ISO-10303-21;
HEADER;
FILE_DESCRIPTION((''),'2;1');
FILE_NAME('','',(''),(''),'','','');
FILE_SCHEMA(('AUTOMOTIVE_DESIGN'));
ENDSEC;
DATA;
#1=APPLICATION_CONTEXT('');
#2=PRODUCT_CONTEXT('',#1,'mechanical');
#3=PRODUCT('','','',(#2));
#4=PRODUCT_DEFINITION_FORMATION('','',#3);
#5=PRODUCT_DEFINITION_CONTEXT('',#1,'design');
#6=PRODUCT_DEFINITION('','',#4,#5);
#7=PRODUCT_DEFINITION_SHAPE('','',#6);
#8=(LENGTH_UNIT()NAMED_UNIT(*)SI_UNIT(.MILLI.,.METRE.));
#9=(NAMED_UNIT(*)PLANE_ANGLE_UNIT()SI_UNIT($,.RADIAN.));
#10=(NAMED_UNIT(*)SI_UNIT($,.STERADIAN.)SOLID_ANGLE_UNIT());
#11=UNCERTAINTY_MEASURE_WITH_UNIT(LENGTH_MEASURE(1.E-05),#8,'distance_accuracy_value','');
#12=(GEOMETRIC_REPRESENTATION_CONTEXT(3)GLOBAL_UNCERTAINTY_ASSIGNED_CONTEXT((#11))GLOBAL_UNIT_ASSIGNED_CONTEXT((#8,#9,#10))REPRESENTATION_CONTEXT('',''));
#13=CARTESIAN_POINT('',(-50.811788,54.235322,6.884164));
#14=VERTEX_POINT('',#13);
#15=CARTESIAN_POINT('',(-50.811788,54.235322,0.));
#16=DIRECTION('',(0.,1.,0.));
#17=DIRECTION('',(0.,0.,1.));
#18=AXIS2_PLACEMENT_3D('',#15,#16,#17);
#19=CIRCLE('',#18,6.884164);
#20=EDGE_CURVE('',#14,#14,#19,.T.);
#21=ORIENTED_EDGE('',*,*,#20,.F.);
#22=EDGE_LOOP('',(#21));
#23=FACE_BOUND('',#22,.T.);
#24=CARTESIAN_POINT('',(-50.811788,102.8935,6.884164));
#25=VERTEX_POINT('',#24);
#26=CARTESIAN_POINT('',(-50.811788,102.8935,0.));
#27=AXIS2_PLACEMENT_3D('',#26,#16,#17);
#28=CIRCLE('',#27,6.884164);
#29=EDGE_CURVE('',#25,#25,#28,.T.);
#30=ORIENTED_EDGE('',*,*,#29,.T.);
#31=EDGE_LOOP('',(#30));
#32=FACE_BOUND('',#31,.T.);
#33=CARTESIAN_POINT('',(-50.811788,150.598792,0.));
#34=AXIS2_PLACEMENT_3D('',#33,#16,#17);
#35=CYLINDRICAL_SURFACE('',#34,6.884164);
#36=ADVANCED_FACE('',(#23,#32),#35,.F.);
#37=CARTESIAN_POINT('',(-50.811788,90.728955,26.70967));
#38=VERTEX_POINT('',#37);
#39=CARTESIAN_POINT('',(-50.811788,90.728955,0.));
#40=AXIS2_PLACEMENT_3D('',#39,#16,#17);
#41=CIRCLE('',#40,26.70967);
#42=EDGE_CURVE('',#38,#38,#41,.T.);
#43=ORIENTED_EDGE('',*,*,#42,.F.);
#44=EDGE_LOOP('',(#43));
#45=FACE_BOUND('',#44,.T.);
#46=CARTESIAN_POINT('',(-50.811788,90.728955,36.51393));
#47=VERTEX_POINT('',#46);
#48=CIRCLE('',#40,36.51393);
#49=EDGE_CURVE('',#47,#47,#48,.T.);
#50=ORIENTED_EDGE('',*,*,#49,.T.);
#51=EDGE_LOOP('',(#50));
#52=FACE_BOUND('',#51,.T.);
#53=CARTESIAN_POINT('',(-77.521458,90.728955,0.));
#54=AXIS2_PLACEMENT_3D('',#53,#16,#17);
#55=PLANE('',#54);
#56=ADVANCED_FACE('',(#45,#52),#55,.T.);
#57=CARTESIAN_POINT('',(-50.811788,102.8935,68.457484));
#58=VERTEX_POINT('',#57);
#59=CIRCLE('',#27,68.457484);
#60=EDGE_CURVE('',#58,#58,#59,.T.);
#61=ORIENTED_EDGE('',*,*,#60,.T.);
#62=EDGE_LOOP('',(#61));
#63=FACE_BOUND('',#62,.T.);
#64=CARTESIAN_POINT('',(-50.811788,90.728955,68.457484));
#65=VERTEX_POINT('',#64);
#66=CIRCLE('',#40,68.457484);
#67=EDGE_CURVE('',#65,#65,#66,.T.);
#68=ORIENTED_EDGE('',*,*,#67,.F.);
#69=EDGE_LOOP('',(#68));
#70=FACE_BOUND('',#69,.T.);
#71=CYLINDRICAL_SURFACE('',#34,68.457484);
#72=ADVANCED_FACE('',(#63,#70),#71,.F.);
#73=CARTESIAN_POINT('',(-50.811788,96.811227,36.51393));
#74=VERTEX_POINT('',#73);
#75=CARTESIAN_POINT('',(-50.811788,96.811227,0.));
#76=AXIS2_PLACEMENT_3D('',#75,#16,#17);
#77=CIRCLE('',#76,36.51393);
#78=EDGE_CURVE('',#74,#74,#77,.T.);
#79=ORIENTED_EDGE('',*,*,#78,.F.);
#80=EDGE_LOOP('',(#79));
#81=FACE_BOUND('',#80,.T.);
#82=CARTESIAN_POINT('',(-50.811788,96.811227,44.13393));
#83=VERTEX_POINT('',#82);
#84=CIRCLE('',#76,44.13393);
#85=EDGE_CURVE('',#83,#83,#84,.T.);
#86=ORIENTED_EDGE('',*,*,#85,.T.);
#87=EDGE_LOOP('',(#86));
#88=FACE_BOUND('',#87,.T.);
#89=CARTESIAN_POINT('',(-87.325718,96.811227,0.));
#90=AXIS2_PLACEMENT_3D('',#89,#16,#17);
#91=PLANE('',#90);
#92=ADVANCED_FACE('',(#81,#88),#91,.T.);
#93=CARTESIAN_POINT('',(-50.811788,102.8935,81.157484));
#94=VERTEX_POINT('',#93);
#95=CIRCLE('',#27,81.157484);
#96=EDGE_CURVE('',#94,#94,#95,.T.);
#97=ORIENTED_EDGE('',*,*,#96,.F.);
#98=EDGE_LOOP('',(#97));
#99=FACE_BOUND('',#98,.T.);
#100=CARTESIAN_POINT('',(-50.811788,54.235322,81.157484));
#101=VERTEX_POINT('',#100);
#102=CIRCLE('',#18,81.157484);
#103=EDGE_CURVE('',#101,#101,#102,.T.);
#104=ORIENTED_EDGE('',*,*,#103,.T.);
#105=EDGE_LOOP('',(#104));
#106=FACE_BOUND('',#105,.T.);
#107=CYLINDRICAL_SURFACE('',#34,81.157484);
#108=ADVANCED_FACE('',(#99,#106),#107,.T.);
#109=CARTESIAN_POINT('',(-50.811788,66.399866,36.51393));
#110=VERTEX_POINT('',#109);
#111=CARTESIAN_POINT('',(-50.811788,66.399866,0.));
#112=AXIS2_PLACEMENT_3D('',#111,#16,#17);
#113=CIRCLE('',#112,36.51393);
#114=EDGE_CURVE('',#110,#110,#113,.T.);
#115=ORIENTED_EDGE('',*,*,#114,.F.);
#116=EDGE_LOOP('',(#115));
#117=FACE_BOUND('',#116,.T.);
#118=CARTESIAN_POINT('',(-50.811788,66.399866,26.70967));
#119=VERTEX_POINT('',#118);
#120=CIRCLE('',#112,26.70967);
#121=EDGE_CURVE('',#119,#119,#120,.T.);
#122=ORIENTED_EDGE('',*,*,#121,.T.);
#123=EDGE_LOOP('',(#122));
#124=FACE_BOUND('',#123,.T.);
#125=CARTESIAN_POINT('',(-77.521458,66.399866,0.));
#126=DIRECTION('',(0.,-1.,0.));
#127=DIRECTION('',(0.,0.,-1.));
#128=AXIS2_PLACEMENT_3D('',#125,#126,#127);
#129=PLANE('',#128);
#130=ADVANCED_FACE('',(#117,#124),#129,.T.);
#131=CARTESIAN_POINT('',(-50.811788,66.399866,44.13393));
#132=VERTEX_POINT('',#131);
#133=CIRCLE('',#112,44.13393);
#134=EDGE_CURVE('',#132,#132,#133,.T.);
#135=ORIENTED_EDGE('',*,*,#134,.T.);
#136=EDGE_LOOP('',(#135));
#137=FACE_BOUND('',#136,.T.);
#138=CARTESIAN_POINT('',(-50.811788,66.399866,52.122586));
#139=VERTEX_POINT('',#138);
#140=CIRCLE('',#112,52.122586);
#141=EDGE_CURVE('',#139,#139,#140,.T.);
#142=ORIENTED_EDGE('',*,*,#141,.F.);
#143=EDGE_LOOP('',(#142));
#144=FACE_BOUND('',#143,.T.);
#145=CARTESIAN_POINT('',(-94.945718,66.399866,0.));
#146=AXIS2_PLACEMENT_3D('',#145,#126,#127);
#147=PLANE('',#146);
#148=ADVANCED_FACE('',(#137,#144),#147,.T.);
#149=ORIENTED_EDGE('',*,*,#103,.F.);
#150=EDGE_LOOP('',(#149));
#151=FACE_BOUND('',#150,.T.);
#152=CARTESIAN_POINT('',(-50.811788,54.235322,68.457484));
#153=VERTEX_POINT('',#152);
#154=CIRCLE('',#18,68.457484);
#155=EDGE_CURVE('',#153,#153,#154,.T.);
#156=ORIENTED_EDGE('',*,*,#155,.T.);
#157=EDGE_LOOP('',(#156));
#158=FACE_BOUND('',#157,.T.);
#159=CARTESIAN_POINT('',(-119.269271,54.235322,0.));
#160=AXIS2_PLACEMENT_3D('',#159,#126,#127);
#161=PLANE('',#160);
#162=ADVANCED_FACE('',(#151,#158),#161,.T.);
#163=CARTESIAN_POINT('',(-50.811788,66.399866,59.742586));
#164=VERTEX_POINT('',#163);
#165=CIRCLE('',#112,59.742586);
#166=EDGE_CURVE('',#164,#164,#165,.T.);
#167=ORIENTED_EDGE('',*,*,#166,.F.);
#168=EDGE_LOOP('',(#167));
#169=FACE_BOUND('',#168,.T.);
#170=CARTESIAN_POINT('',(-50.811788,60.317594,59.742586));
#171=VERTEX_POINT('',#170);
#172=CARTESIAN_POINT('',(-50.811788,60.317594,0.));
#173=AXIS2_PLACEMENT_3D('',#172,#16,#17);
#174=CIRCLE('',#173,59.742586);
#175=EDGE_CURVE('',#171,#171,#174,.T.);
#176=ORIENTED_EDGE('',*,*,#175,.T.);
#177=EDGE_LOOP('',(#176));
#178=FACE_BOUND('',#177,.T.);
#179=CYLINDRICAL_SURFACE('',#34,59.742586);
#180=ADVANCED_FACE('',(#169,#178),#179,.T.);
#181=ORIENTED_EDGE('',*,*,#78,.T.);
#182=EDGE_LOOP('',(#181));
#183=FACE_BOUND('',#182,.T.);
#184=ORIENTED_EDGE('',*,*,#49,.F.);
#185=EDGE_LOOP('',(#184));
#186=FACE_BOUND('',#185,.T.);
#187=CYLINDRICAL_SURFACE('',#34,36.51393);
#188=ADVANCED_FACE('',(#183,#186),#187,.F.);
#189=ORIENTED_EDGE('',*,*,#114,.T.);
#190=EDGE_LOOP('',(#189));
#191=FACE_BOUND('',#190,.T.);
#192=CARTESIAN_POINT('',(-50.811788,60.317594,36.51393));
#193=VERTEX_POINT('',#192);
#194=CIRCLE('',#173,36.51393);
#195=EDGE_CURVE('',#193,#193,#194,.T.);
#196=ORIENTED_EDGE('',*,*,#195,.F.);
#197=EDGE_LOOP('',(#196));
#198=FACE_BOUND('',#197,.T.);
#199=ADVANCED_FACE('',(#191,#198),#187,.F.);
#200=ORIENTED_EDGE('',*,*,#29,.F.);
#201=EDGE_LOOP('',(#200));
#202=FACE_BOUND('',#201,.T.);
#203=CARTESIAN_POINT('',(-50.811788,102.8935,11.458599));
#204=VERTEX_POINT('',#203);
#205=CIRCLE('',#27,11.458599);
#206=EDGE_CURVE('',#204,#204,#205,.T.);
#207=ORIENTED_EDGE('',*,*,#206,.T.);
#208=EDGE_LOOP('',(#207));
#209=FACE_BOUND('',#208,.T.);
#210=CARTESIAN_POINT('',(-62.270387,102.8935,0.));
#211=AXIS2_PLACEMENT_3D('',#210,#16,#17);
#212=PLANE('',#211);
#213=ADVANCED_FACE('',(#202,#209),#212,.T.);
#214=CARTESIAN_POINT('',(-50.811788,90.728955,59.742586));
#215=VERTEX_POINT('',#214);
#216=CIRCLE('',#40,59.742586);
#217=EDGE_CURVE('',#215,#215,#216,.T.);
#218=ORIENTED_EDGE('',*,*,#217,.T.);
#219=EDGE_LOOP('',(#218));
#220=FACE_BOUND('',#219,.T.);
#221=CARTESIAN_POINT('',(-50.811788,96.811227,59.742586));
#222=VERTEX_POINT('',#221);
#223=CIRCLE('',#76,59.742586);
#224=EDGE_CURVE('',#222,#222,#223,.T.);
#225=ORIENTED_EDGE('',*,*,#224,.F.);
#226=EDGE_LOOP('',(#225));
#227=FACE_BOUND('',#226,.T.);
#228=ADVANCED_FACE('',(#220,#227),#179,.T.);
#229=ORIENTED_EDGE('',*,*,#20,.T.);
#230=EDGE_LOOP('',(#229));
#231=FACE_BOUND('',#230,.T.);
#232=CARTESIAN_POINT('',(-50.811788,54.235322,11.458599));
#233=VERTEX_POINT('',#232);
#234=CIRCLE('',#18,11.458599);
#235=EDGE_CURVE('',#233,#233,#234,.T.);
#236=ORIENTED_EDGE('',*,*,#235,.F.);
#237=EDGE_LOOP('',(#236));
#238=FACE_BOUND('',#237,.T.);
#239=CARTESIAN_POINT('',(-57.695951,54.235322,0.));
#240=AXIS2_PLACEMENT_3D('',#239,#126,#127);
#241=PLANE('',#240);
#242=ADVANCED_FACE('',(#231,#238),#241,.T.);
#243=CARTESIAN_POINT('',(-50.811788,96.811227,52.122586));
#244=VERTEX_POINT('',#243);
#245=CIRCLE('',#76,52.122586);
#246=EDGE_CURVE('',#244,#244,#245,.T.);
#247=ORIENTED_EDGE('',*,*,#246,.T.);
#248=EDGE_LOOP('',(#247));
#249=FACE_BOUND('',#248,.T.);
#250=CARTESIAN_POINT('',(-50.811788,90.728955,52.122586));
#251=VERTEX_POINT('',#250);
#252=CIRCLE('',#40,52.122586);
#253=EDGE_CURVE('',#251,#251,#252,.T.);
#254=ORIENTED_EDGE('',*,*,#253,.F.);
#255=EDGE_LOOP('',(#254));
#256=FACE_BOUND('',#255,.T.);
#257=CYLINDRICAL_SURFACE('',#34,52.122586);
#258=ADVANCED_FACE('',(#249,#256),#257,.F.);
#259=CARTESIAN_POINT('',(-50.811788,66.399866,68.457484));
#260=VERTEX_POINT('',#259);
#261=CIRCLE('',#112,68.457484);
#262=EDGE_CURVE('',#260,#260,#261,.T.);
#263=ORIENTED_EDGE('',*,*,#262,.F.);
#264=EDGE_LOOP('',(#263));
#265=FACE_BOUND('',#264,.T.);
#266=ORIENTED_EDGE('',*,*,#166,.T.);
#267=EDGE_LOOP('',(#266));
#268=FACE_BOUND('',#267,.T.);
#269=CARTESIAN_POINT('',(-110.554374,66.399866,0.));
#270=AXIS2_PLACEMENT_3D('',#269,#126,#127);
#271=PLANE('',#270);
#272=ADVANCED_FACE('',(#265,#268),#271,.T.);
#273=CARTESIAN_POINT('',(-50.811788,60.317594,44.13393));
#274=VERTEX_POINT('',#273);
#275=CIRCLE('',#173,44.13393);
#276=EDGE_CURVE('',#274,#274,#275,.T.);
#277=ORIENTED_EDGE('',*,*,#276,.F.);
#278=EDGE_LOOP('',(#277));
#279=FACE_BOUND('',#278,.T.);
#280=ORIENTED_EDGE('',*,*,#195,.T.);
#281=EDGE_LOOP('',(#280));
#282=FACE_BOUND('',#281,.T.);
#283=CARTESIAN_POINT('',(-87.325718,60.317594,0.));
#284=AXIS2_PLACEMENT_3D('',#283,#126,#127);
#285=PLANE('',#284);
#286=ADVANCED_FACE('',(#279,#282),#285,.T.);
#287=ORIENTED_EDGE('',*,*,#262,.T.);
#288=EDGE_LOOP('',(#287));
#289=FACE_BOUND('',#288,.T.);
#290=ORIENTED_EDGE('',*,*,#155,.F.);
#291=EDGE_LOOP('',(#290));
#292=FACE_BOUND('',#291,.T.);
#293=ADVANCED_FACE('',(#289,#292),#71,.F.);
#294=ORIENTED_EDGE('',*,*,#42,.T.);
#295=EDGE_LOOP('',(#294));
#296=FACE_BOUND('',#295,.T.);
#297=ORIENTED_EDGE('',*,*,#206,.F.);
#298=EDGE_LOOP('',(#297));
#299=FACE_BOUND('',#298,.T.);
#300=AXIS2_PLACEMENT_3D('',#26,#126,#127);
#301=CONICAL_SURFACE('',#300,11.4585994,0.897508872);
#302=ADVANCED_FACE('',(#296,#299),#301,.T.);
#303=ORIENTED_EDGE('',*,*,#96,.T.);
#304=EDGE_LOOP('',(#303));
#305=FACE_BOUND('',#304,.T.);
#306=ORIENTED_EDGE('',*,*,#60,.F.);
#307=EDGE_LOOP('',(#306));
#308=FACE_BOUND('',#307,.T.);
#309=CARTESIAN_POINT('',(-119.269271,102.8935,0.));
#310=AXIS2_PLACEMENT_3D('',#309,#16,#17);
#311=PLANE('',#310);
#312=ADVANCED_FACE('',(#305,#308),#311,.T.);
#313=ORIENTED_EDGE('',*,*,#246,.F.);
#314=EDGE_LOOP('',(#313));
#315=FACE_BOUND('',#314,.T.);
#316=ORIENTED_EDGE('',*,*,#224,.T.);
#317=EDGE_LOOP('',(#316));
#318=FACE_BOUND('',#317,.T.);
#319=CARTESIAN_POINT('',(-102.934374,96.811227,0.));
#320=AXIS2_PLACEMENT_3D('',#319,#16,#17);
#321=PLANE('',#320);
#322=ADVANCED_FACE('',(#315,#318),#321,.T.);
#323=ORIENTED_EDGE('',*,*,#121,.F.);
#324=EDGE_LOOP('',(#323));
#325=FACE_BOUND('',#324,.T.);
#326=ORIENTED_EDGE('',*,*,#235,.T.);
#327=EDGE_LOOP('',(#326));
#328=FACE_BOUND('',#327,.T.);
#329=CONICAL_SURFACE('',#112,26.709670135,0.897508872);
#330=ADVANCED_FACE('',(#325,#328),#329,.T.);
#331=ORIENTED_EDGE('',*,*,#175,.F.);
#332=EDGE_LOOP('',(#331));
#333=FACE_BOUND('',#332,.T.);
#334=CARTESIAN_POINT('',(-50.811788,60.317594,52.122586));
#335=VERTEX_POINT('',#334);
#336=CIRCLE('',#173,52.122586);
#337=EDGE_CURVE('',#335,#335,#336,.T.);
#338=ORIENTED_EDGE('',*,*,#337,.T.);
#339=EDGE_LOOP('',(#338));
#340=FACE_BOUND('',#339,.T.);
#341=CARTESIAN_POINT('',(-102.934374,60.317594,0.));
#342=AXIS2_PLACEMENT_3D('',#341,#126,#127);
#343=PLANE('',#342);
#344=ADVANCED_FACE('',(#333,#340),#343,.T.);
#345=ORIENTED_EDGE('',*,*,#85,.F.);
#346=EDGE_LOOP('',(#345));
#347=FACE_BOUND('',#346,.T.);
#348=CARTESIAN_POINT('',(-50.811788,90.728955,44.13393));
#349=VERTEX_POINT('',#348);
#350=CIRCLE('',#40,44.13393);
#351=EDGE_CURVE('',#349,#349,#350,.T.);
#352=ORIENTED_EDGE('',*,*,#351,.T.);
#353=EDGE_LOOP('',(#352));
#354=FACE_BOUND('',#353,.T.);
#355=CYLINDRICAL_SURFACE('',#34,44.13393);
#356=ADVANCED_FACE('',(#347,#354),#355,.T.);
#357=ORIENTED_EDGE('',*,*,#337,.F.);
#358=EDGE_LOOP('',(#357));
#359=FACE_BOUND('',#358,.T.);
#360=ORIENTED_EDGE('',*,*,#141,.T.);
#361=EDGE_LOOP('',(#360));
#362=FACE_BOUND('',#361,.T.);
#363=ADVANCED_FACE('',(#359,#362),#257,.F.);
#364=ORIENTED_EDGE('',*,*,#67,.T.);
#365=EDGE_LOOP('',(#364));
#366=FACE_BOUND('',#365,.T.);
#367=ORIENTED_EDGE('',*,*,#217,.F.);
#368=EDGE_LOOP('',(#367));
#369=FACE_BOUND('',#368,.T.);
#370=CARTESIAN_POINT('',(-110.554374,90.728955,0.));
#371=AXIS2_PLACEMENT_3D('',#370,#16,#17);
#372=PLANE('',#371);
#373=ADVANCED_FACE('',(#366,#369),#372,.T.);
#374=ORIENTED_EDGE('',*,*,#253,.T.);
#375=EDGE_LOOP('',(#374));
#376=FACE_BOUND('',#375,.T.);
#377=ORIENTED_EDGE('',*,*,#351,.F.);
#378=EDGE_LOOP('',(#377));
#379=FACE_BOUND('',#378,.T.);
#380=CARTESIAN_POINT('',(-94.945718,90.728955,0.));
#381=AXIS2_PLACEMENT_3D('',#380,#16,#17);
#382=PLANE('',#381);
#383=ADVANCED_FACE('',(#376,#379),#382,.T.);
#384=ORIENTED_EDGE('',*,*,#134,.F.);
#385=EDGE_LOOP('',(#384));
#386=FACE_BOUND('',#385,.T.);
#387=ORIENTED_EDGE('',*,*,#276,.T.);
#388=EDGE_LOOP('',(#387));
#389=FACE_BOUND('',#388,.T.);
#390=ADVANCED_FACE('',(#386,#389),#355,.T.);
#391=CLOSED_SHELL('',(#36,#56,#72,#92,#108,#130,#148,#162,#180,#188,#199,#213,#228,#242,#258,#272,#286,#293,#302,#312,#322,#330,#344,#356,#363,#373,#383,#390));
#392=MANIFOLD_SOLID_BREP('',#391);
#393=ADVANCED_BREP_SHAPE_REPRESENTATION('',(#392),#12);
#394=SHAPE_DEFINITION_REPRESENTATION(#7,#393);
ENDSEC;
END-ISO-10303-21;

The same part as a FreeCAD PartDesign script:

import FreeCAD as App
import Part
import Sketcher

V = App.Vector
Q = App.Units.Quantity


def add_polygon(sketch, points):
    """Adds a closed chain of lines whose ends are joined by coincident constraints."""
    first, n = sketch.GeometryCount, len(points)
    for a, b in zip(points, points[1:] + points[:1]):
        sketch.addGeometry(Part.LineSegment(App.Vector(*a, 0), App.Vector(*b, 0)), False)
    for i in range(n):
        sketch.addConstraint(Sketcher.Constraint("Coincident", first + i, 2, first + (i + 1) % n, 1))

doc = App.newDocument("Part")
body = doc.addObject("PartDesign::Body", "Body")

# Sketch on XY plane
sketch1 = body.newObject("Sketcher::SketchObject", "Sketch")
sketch1.AttachmentSupport = (doc.getObject("XY_Plane"), [""])
sketch1.MapMode = "FlatFace"
add_polygon(sketch1, [(-62.3, 102.9), (-77.5, 90.7), (-87.3, 90.7), (-87.3, 96.8), (-94.9, 96.8), (-94.9, 90.7), (-102.9, 90.7), (-102.9, 96.8), (-110.6, 96.8), (-110.6, 90.7), (-119.3, 90.7), (-119.3, 102.9), (-132, 102.9), (-132, 54.2), (-119.3, 54.2), (-119.3, 66.4), (-110.6, 66.4), (-110.6, 60.3), (-102.9, 60.3), (-102.9, 66.4), (-94.9, 66.4), (-94.9, 60.3), (-87.3, 60.3), (-87.3, 66.4), (-77.5, 66.4), (-62.3, 54.2), (-57.7, 54.2), (-57.7, 102.9)])  # lines 0-27
sketch1.addGeometry(Part.LineSegment(V(-50.8, 102.9, 0), V(-50.8, 54.2, 0)), True)  # axis
sketch1.addConstraint([
    Sketcher.Constraint("Horizontal", 1),
    Sketcher.Constraint("Vertical", 2),
    Sketcher.Constraint("Horizontal", 3),
    Sketcher.Constraint("Vertical", 4),
    Sketcher.Constraint("Horizontal", 5),
    Sketcher.Constraint("Vertical", 6),
    Sketcher.Constraint("Horizontal", 7),
    Sketcher.Constraint("Vertical", 8),
    Sketcher.Constraint("Horizontal", 9),
    Sketcher.Constraint("Vertical", 10),
    Sketcher.Constraint("Horizontal", 11),
    Sketcher.Constraint("Vertical", 12),
    Sketcher.Constraint("Horizontal", 13),
    Sketcher.Constraint("Vertical", 14),
    Sketcher.Constraint("Horizontal", 15),
    Sketcher.Constraint("Vertical", 16),
    Sketcher.Constraint("Horizontal", 17),
    Sketcher.Constraint("Vertical", 18),
    Sketcher.Constraint("Horizontal", 19),
    Sketcher.Constraint("Vertical", 20),
    Sketcher.Constraint("Horizontal", 21),
    Sketcher.Constraint("Vertical", 22),
    Sketcher.Constraint("Horizontal", 23),
    Sketcher.Constraint("Horizontal", 25),
    Sketcher.Constraint("Vertical", 26),
    Sketcher.Constraint("Horizontal", 27),
    Sketcher.Constraint("Vertical", 28),
    Sketcher.Constraint("Horizontal", 1, 2, 4, 2),
    Sketcher.Constraint("Horizontal", 3, 2, 6, 2),
    Sketcher.Constraint("Horizontal", 5, 2, 8, 2),
    Sketcher.Constraint("Horizontal", 15, 2, 18, 2),
    Sketcher.Constraint("Horizontal", 17, 2, 20, 2),
    Sketcher.Constraint("Horizontal", 19, 2, 22, 2),
    Sketcher.Constraint("Horizontal", 13, 2, 24, 2),
    Sketcher.Constraint("Horizontal", 11, 2, 26, 2),
    Sketcher.Constraint("Horizontal", 27, 2, 28, 1),
    Sketcher.Constraint("Horizontal", 25, 2, 28, 2),
    Sketcher.Constraint("Vertical", 10, 2, 13, 2),
    Sketcher.Constraint("Vertical", 8, 2, 15, 2),
    Sketcher.Constraint("Vertical", 6, 2, 17, 2),
    Sketcher.Constraint("Vertical", 4, 2, 19, 2),
    Sketcher.Constraint("Vertical", 2, 2, 21, 2),
    Sketcher.Constraint("Vertical", 0, 2, 23, 2),
    Sketcher.Constraint("Vertical", 24, 2, 27, 2),
    Sketcher.Constraint("Equal", 3, 7),
    Sketcher.Constraint("Equal", 10, 14),
    Sketcher.Constraint("Equal", 8, 16),
    Sketcher.Constraint("DistanceX", 3, 2, 3, 1, Q("0.3 in")),
    Sketcher.Constraint("DistanceX", 11, 2, 11, 1, Q("0.5 in")),
    Sketcher.Constraint("DistanceX", 1, 2, 1, 1, 9.80426),
    Sketcher.Constraint("DistanceY", 12, 2, 12, 1, 48.658178),
    Sketcher.Constraint("DistanceY", -1, 1, 10, 2, 102.8935),
    Sketcher.Constraint("DistanceX", 27, 2, 28, 1, 11.458599),
    Sketcher.Constraint("DistanceX", 5, 2, 5, 1, 7.988656),
    Sketcher.Constraint("DistanceX", 9, 2, 9, 1, 8.714898),
    Sketcher.Constraint("DistanceX", 25, 1, 25, 2, 4.574436),
    Sketcher.Constraint("DistanceY", 2, 1, 2, 2, 6.082272),
    Sketcher.Constraint("DistanceY", 10, 1, 10, 2, 12.164545),
    Sketcher.Constraint("DistanceX", 9, 2, -1, 1, 119.269271),
    Sketcher.Constraint("DistanceX", 25, 2, -1, 1, 57.695951),
])
revolution = body.newObject("PartDesign::Revolution", "Revolution")
revolution.Profile = sketch1
revolution.ReferenceAxis = (sketch1, ["Axis0"])
revolution.Angle = 360

doc.recompute()
